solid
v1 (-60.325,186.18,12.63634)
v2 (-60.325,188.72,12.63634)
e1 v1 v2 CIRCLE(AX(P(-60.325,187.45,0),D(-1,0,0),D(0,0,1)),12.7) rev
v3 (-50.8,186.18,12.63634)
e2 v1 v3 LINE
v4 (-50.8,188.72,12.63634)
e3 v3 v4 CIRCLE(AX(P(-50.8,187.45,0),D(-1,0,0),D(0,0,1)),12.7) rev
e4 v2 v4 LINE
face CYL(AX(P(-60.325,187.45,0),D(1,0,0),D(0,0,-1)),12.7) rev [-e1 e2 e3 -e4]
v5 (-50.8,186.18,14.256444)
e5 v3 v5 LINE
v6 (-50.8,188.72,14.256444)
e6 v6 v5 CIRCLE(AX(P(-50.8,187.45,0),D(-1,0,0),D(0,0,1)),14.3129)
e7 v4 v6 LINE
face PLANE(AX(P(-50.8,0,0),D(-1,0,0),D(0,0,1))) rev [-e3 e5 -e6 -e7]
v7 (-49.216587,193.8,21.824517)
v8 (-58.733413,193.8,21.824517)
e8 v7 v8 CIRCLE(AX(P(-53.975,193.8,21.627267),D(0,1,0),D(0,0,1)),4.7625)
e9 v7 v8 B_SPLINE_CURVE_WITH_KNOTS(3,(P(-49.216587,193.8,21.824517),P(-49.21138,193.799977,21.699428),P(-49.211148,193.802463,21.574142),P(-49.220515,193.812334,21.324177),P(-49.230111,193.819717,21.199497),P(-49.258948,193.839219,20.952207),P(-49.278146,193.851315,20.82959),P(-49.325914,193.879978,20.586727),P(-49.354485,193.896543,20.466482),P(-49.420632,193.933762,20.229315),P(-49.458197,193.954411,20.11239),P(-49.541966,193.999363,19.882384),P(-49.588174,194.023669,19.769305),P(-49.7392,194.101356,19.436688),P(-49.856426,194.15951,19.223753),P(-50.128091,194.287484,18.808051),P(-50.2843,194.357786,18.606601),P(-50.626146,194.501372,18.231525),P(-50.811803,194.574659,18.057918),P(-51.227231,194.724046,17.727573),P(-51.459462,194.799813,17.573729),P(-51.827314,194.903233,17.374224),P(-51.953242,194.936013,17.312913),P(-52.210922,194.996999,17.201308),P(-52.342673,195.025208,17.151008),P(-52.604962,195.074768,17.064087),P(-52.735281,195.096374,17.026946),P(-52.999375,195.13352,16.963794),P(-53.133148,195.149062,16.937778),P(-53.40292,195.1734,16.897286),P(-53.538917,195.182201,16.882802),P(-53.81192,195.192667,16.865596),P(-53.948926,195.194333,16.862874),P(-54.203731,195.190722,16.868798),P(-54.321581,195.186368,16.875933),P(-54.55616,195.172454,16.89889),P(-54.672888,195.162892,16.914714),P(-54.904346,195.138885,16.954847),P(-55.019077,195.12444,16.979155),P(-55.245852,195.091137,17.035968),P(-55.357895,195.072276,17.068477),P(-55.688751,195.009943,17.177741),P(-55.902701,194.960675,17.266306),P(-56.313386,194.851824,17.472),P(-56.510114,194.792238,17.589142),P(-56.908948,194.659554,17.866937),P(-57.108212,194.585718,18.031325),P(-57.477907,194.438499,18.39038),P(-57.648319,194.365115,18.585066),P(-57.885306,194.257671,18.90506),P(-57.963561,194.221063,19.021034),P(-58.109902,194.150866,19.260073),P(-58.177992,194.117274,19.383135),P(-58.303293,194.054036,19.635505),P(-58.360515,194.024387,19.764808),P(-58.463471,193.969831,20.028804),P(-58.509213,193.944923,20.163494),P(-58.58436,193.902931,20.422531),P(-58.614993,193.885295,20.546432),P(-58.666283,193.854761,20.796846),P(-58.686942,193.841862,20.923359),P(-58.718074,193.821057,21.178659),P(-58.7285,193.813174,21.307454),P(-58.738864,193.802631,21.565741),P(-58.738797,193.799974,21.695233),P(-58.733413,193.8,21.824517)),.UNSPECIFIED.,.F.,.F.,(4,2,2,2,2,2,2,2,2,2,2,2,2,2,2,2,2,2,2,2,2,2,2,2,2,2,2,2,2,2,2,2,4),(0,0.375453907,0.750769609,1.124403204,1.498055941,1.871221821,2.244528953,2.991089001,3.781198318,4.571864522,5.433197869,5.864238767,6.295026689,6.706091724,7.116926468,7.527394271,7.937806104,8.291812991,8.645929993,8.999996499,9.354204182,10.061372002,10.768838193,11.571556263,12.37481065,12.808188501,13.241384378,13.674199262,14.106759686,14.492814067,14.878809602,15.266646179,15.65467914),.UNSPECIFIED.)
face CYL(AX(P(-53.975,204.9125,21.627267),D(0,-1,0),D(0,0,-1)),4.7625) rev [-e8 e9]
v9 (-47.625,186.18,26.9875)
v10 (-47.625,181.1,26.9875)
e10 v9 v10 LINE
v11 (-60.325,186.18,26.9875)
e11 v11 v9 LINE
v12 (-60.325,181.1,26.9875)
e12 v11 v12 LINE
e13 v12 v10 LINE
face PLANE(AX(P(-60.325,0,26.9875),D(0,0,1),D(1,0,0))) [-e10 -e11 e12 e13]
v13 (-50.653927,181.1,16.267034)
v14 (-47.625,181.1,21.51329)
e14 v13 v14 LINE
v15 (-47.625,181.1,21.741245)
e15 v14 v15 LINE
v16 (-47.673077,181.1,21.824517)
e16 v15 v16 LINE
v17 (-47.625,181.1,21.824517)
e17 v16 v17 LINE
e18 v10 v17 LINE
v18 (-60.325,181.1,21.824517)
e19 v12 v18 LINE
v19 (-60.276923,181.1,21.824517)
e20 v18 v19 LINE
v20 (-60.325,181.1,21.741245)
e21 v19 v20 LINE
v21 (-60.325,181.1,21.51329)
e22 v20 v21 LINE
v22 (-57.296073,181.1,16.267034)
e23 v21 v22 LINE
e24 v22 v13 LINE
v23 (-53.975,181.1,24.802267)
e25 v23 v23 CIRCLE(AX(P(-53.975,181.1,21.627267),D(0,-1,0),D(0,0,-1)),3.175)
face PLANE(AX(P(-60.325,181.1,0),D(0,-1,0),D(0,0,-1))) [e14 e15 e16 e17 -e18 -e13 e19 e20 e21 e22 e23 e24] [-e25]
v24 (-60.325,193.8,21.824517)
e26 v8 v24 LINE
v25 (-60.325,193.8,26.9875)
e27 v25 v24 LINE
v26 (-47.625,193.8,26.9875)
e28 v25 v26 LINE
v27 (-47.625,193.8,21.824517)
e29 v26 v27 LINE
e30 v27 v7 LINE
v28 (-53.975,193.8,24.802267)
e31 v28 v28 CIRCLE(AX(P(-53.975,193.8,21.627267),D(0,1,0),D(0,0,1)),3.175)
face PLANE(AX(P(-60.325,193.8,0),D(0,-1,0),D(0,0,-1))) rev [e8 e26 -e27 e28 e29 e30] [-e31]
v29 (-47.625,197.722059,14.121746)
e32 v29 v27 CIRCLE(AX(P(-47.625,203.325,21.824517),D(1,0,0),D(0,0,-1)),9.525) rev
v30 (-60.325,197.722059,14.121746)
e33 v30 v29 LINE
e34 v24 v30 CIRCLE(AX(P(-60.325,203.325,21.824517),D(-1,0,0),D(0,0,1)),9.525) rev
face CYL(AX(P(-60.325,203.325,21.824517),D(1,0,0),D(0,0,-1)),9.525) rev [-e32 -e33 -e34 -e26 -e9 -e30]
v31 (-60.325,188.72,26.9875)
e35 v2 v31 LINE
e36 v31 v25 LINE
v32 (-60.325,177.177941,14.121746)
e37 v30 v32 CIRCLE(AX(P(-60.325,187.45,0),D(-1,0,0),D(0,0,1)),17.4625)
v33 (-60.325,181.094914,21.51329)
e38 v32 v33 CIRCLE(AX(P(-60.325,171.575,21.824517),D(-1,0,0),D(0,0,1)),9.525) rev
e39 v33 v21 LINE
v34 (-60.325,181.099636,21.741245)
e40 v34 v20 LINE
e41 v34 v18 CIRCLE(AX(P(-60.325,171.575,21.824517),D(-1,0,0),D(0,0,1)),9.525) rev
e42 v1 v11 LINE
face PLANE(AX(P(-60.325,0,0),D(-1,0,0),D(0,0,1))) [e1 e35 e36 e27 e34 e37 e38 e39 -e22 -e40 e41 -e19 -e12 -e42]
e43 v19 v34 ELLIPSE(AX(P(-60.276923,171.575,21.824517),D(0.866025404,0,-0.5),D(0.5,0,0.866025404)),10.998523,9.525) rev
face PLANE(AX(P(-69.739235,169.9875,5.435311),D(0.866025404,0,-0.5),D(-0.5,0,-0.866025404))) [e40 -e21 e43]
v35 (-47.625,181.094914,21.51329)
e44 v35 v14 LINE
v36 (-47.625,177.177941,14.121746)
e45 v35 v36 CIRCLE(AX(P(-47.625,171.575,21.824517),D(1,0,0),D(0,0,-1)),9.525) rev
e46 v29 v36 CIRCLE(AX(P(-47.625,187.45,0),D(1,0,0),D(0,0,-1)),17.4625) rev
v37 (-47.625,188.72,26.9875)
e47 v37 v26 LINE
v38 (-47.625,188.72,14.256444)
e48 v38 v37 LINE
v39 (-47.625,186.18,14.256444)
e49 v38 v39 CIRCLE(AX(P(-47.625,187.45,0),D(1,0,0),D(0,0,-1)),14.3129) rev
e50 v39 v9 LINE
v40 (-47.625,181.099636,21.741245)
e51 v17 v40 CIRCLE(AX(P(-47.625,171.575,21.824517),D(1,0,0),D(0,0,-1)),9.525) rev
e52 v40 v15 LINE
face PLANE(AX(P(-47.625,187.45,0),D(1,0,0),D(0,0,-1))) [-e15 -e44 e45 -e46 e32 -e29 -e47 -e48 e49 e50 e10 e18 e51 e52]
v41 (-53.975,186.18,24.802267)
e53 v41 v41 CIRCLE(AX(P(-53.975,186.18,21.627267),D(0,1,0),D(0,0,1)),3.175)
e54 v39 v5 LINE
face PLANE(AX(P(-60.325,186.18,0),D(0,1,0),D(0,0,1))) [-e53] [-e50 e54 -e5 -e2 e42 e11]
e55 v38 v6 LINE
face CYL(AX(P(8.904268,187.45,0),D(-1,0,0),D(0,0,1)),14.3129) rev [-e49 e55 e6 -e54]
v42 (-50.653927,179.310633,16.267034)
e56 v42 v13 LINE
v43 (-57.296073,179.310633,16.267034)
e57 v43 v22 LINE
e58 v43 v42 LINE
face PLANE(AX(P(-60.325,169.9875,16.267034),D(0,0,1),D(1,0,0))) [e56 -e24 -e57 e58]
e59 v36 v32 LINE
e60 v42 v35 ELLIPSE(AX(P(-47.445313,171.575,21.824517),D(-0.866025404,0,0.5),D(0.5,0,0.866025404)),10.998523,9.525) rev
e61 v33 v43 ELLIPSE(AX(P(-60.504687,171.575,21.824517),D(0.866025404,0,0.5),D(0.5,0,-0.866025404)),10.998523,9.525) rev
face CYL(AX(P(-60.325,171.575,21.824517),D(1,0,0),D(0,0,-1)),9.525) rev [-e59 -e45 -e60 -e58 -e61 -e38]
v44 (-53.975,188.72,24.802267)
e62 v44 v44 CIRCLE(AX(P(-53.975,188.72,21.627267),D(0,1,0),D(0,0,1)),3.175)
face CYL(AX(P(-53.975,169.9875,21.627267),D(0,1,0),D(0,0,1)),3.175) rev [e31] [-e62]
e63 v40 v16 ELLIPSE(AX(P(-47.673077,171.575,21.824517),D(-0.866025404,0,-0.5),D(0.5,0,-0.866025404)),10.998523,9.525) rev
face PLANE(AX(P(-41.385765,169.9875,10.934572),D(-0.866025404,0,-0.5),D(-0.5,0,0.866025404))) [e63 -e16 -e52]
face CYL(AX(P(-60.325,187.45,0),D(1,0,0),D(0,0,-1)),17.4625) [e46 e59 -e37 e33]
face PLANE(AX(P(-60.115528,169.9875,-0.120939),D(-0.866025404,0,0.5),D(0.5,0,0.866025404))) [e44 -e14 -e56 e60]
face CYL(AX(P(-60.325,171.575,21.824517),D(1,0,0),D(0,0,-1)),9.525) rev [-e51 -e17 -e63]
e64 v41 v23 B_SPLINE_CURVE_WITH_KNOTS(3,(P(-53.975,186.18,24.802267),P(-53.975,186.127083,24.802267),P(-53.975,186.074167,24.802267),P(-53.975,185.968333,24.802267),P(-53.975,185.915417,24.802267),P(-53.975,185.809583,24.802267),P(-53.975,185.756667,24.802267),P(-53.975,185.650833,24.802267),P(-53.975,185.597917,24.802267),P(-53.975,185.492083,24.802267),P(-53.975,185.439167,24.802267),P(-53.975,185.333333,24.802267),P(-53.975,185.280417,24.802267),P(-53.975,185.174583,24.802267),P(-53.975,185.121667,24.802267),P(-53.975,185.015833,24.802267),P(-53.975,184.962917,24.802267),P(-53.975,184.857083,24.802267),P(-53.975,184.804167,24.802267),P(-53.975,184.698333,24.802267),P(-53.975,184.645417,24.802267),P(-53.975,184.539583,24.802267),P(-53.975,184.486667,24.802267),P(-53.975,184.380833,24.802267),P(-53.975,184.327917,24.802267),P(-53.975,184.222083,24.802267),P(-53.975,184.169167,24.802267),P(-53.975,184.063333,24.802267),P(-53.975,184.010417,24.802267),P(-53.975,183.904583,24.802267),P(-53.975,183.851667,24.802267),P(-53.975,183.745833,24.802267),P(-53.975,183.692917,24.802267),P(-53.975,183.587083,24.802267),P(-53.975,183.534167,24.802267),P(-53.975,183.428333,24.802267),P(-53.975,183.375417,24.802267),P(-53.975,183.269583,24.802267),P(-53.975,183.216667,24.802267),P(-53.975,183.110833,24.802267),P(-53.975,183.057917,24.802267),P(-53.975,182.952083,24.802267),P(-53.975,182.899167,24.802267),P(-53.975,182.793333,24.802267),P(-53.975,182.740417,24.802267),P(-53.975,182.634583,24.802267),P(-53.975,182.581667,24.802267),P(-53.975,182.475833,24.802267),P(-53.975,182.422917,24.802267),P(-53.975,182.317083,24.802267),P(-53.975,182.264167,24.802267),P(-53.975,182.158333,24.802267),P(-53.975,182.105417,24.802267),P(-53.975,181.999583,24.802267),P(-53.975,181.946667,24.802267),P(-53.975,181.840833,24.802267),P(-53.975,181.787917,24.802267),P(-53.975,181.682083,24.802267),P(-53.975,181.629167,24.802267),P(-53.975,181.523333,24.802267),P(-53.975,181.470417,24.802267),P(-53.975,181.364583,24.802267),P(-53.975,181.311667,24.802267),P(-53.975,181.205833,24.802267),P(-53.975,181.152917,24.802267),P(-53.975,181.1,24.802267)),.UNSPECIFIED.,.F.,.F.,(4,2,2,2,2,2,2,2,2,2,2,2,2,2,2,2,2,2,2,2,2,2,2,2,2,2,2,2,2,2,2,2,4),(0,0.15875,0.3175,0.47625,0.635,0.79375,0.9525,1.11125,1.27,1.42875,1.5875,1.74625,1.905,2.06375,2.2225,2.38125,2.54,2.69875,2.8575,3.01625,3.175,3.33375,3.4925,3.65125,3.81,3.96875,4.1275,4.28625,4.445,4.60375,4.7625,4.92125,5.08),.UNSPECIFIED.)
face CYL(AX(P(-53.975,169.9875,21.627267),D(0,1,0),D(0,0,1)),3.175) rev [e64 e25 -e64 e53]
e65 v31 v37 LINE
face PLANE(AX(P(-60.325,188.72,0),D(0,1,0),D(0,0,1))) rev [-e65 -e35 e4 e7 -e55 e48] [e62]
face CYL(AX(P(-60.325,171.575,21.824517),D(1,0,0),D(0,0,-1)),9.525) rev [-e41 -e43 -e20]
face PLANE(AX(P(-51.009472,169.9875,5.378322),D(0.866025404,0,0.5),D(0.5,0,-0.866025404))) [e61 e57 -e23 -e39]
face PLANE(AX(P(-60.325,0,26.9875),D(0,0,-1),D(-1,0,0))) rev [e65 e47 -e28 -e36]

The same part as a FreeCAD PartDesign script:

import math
import FreeCAD as App
import Part
import Sketcher
Q = App.Units.Quantity


def edges_at(feature, points):
    """Names of the edges that pass closest to the given points."""
    edges = feature.Shape.Edges
    near = lambda p: min(range(len(edges)), key=lambda i: edges[i].distToShape(Part.Vertex(*p))[0])
    return sorted({f"Edge{near(p) + 1}" for p in points})

doc = App.newDocument("Part")
body = doc.addObject("PartDesign::Body", "Body")

# Sketch on YZ plane
sketch1 = body.newObject("Sketcher::SketchObject", "Sketch")
sketch1.AttachmentSupport = (doc.getObject("YZ_Plane"), [""])
sketch1.MapMode = "FlatFace"
sketch1.AttachmentOffset = App.Placement(App.Vector(0, 0, -2 * 25.4), App.Rotation())
sketch1.addGeometry([
    Part.ArcOfCircle(Part.Circle(App.Vector(187.4, 0, 0), App.Vector(0, 0, 1), 12.7), math.radians(96), math.radians(444)),  # 0
    Part.LineSegment(App.Vector(188.7, 12.6, 0), App.Vector(188.7, 27, 0)),  # 1
    Part.LineSegment(App.Vector(188.7, 27, 0), App.Vector(193.8, 27, 0)),  # 2
    Part.LineSegment(App.Vector(193.8, 27, 0), App.Vector(193.8, 16.3, 0)),  # 3
    Part.ArcOfCircle(Part.Circle(App.Vector(187.4, 0, 0), App.Vector(0, 0, 1), 17.5), math.radians(111), math.radians(429)),  # 4
    Part.LineSegment(App.Vector(181.1, 16.3, 0), App.Vector(181.1, 27, 0)),  # 5
    Part.LineSegment(App.Vector(181.1, 27, 0), App.Vector(186.2, 27, 0)),  # 6
    Part.LineSegment(App.Vector(186.2, 27, 0), App.Vector(186.2, 12.6, 0)),  # 7
], False)
sketch1.addConstraint([
    Sketcher.Constraint("Coincident", 0, 2, 1, 1),
    Sketcher.Constraint("Coincident", 1, 2, 2, 1),
    Sketcher.Constraint("Coincident", 2, 2, 3, 1),
    Sketcher.Constraint("Coincident", 3, 2, 4, 2),
    Sketcher.Constraint("Coincident", 4, 1, 5, 1),
    Sketcher.Constraint("Coincident", 5, 2, 6, 1),
    Sketcher.Constraint("Coincident", 6, 2, 7, 1),
    Sketcher.Constraint("Coincident", 7, 2, 0, 1),
    Sketcher.Constraint("Vertical", 1),
    Sketcher.Constraint("Horizontal", 2),
    Sketcher.Constraint("Vertical", 3),
    Sketcher.Constraint("Vertical", 5),
    Sketcher.Constraint("Horizontal", 6),
    Sketcher.Constraint("Vertical", 7),
    Sketcher.Constraint("Coincident", 4, 3, 0, 3),
    Sketcher.Constraint("PointOnObject", 0, 3, -1),
    Sketcher.Constraint("Horizontal", 3, 2, 4, 1),
    Sketcher.Constraint("Horizontal", 2, 2, 5, 2),
    Sketcher.Constraint("Horizontal", 0, 2, 7, 2),
    Sketcher.Constraint("Radius", 0, Q("0.5 in")),
    Sketcher.Constraint("DistanceX", 2, 1, 2, 2, Q("0.2 in")),
    Sketcher.Constraint("Radius", 4, Q("0.6875 in")),
    Sketcher.Constraint("DistanceX", 4, 1, 0, 2, Q("0.3 in")),
    Sketcher.Constraint("DistanceY", -1, 1, 1, 2, Q("1.0625 in")),
    Sketcher.Constraint("DistanceX", -1, 1, 0, 3, Q("187.45 mm")),
])
pad1 = body.newObject("PartDesign::Pad", "Pad")
pad1.Profile = sketch1
pad1.Length = Q("0.375 in")
pad1.Reversed = True

# Sketch on YZ plane
sketch2 = body.newObject("Sketcher::SketchObject", "Sketch001")
sketch2.AttachmentSupport = (doc.getObject("YZ_Plane"), [""])
sketch2.MapMode = "FlatFace"
sketch2.AttachmentOffset = App.Placement(App.Vector(0, 0, -1.875 * 25.4), App.Rotation())
sketch2.addGeometry([
    Part.ArcOfCircle(Part.Circle(App.Vector(187.4, 0, 0), App.Vector(0, 0, 1), 14.3), math.radians(95), math.radians(445)),  # 0
    Part.LineSegment(App.Vector(188.7, 14.3, 0), App.Vector(188.7, 27, 0)),  # 1
    Part.LineSegment(App.Vector(188.7, 27, 0), App.Vector(193.8, 27, 0)),  # 2
    Part.LineSegment(App.Vector(193.8, 27, 0), App.Vector(193.8, 16.3, 0)),  # 3
    Part.ArcOfCircle(Part.Circle(App.Vector(187.4, 0, 0), App.Vector(0, 0, 1), 17.5), math.radians(111), math.radians(429)),  # 4
    Part.LineSegment(App.Vector(181.1, 16.3, 0), App.Vector(181.1, 27, 0)),  # 5
    Part.LineSegment(App.Vector(181.1, 27, 0), App.Vector(186.2, 27, 0)),  # 6
    Part.LineSegment(App.Vector(186.2, 27, 0), App.Vector(186.2, 14.3, 0)),  # 7
], False)
sketch2.addConstraint([
    Sketcher.Constraint("Coincident", 0, 2, 1, 1),
    Sketcher.Constraint("Coincident", 1, 2, 2, 1),
    Sketcher.Constraint("Coincident", 2, 2, 3, 1),
    Sketcher.Constraint("Coincident", 3, 2, 4, 2),
    Sketcher.Constraint("Coincident", 4, 1, 5, 1),
    Sketcher.Constraint("Coincident", 5, 2, 6, 1),
    Sketcher.Constraint("Coincident", 6, 2, 7, 1),
    Sketcher.Constraint("Coincident", 7, 2, 0, 1),
    Sketcher.Constraint("Vertical", 1),
    Sketcher.Constraint("Horizontal", 2),
    Sketcher.Constraint("Vertical", 3),
    Sketcher.Constraint("Vertical", 5),
    Sketcher.Constraint("Horizontal", 6),
    Sketcher.Constraint("Vertical", 7),
    Sketcher.Constraint("Coincident", 4, 3, 0, 3),
    Sketcher.Constraint("PointOnObject", 0, 3, -1),
    Sketcher.Constraint("Horizontal", 3, 2, 4, 1),
    Sketcher.Constraint("Horizontal", 2, 2, 5, 2),
    Sketcher.Constraint("Horizontal", 0, 2, 7, 2),
    Sketcher.Constraint("DistanceX", 2, 1, 2, 2, Q("0.2 in")),
    Sketcher.Constraint("Radius", 4, Q("0.6875 in")),
    Sketcher.Constraint("Radius", 0, Q("0.5635 in")),
    Sketcher.Constraint("DistanceX", 4, 1, 0, 2, Q("0.3 in")),
    Sketcher.Constraint("DistanceY", -1, 1, 1, 2, Q("1.0625 in")),
    Sketcher.Constraint("DistanceX", -1, 1, 0, 3, Q("187.45 mm")),
])
pad2 = body.newObject("PartDesign::Pad", "Pad001")
pad2.Profile = sketch2
pad2.Length = Q("0.125 in")
pad2.Reversed = True
doc.recompute()

fillet = body.newObject("PartDesign::Fillet", "Fillet")
fillet.Base = (pad2, edges_at(pad2, [(-53.975, 181.1, 16.267), (-53.975, 193.8, 16.267)]))
fillet.Radius = Q("0.375 in")

# Sketch on XZ plane
sketch3 = body.newObject("Sketcher::SketchObject", "Sketch002")
sketch3.AttachmentSupport = (doc.getObject("XZ_Plane"), [""])
sketch3.MapMode = "FlatFace"
sketch3.AttachmentOffset = App.Placement(App.Vector(0, 0, -193.8), App.Rotation())
sketch3.addGeometry(Part.Circle(App.Vector(-54, 21.6, 0), App.Vector(0, 0, 1), 4.8), False)
sketch3.addConstraint([
    Sketcher.Constraint("Diameter", 0, Q("0.375 in")),
    Sketcher.Constraint("DistanceX", 0, 3, -1, 1, Q("2.125 in")),
    Sketcher.Constraint("DistanceY", -1, 1, 0, 3, Q("21.627267 mm")),
])
pocket1 = body.newObject("PartDesign::Pocket", "Pocket")
pocket1.Profile = sketch3
pocket1.Length = 71.245754

# Sketch on XZ plane
sketch4 = body.newObject("Sketcher::SketchObject", "Sketch003")
sketch4.AttachmentSupport = (doc.getObject("XZ_Plane"), [""])
sketch4.MapMode = "FlatFace"
sketch4.AttachmentOffset = App.Placement(App.Vector(0, 0, -193.8), App.Rotation())
sketch4.addGeometry(Part.Circle(App.Vector(-54, 21.6, 0), App.Vector(0, 0, 1), 3.2), False)
sketch4.addConstraint([
    Sketcher.Constraint("Diameter", 0, Q("0.25 in")),
    Sketcher.Constraint("DistanceX", 0, 3, -1, 1, Q("2.125 in")),
    Sketcher.Constraint("DistanceY", -1, 1, 0, 3, Q("21.627267 mm")),
])
pocket2 = body.newObject("PartDesign::Pocket", "Pocket001")
pocket2.Profile = sketch4
pocket2.Type = "ThroughAll"
pocket2.Reversed = True

# Sketch on XZ plane
sketch5 = body.newObject("Sketcher::SketchObject", "Sketch004")
sketch5.AttachmentSupport = (doc.getObject("XZ_Plane"), [""])
sketch5.MapMode = "FlatFace"
sketch5.AttachmentOffset = App.Placement(App.Vector(0, 0, -181.1), App.Rotation())
sketch5.addGeometry([
    Part.LineSegment(App.Vector(-60.33, 21.51, 0), App.Vector(-60.33, 21.74, 0)),  # 0
    Part.LineSegment(App.Vector(-60.33, 21.74, 0), App.Vector(-57.3, 26.99, 0)),  # 1
    Part.LineSegment(App.Vector(-57.3, 26.99, 0), App.Vector(-50.65, 26.99, 0)),  # 2
    Part.LineSegment(App.Vector(-50.65, 26.99, 0), App.Vector(-47.62, 21.74, 0)),  # 3
    Part.LineSegment(App.Vector(-47.62, 21.74, 0), App.Vector(-47.62, 21.51, 0)),  # 4
    Part.LineSegment(App.Vector(-47.62, 21.51, 0), App.Vector(-50.65, 16.27, 0)),  # 5
    Part.LineSegment(App.Vector(-50.65, 16.27, 0), App.Vector(-57.3, 16.27, 0)),  # 6
    Part.LineSegment(App.Vector(-57.3, 16.27, 0), App.Vector(-60.33, 21.51, 0)),  # 7
], False)
sketch5.addConstraint([
    Sketcher.Constraint("Coincident", 0, 2, 1, 1),
    Sketcher.Constraint("Coincident", 1, 2, 2, 1),
    Sketcher.Constraint("Coincident", 2, 2, 3, 1),
    Sketcher.Constraint("Coincident", 3, 2, 4, 1),
    Sketcher.Constraint("Coincident", 4, 2, 5, 1),
    Sketcher.Constraint("Coincident", 5, 2, 6, 1),
    Sketcher.Constraint("Coincident", 6, 2, 7, 1),
    Sketcher.Constraint("Coincident", 7, 2, 0, 1),
    Sketcher.Constraint("Vertical", 0),
    Sketcher.Constraint("Horizontal", 2),
    Sketcher.Constraint("Vertical", 4),
    Sketcher.Constraint("Horizontal", 6),
    Sketcher.Constraint("Parallel", 1, 5),
    Sketcher.Constraint("Parallel", 3, 7),
    Sketcher.Constraint("Horizontal", 0, 2, 3, 2),
    Sketcher.Constraint("Horizontal", 4, 2, 7, 2),
    Sketcher.Constraint("Vertical", 2, 2, 5, 2),
    Sketcher.Constraint("Vertical", 1, 2, 6, 2),
    Sketcher.Constraint("Angle", 1, Q("60 deg")),
    Sketcher.Constraint("DistanceX", 0, 2, 3, 2, Q("0.5 in")),
    Sketcher.Constraint("DistanceX", 0, 2, -1, 1, Q("2.375 in")),
    Sketcher.Constraint("DistanceY", -1, 1, 1, 2, Q("1.0625 in")),
    Sketcher.Constraint("DistanceX", 2, 1, 2, 2, Q("6.642146 mm")),
    Sketcher.Constraint("DistanceY", 0, 1, 0, 2, Q("0.227955 mm")),
])
pocket3 = body.newObject("PartDesign::Pocket", "Pocket002")
pocket3.Profile = sketch5
pocket3.Length = 58.545754
pocket3.Reversed = True

doc.recompute()
